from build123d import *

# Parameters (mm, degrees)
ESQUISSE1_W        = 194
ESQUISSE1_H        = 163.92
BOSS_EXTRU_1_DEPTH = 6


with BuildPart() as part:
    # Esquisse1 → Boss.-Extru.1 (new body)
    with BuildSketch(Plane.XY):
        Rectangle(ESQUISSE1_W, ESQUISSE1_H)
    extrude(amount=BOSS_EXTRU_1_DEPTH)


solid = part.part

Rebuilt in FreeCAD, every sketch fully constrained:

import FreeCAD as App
import Part
import Sketcher
from FreeCAD import Vector
Q = App.Units.Quantity


def add_polygon(sketch, points):
    """Adds a closed chain of lines whose ends are joined by coincident constraints."""
    first, n = sketch.GeometryCount, len(points)
    for a, b in zip(points, points[1:] + points[:1]):
        sketch.addGeometry(Part.LineSegment(App.Vector(*a, 0), App.Vector(*b, 0)), False)
    for i in range(n):
        sketch.addConstraint(Sketcher.Constraint("Coincident", first + i, 2, first + (i + 1) % n, 1))

doc = App.newDocument("Part")
body = doc.addObject("PartDesign::Body", "Body")

# Sketch on XY plane
sketch1 = body.newObject("Sketcher::SketchObject", "Sketch")
sketch1.AttachmentSupport = (doc.getObject("XY_Plane"), [""])
sketch1.MapMode = "FlatFace"
add_polygon(sketch1, [(-97, 81.96), (-97, -81.96), (97, -81.96), (97, 81.96)])  # lines 0-3
sketch1.addConstraint([
    Sketcher.Constraint("Vertical", 0),
    Sketcher.Constraint("Horizontal", 1),
    Sketcher.Constraint("Vertical", 2),
    Sketcher.Constraint("Horizontal", 3),
    Sketcher.Constraint("Symmetric", 0, 2, 2, 2, -1, 1),
    Sketcher.Constraint("DistanceX", 1, 1, 1, 2, Q("194 mm")),
    Sketcher.Constraint("DistanceY", 0, 2, 0, 1, Q("163.92 mm")),
])
pad1 = body.newObject("PartDesign::Pad", "Pad")
pad1.Profile = sketch1
pad1.Length = 6

doc.recompute()
